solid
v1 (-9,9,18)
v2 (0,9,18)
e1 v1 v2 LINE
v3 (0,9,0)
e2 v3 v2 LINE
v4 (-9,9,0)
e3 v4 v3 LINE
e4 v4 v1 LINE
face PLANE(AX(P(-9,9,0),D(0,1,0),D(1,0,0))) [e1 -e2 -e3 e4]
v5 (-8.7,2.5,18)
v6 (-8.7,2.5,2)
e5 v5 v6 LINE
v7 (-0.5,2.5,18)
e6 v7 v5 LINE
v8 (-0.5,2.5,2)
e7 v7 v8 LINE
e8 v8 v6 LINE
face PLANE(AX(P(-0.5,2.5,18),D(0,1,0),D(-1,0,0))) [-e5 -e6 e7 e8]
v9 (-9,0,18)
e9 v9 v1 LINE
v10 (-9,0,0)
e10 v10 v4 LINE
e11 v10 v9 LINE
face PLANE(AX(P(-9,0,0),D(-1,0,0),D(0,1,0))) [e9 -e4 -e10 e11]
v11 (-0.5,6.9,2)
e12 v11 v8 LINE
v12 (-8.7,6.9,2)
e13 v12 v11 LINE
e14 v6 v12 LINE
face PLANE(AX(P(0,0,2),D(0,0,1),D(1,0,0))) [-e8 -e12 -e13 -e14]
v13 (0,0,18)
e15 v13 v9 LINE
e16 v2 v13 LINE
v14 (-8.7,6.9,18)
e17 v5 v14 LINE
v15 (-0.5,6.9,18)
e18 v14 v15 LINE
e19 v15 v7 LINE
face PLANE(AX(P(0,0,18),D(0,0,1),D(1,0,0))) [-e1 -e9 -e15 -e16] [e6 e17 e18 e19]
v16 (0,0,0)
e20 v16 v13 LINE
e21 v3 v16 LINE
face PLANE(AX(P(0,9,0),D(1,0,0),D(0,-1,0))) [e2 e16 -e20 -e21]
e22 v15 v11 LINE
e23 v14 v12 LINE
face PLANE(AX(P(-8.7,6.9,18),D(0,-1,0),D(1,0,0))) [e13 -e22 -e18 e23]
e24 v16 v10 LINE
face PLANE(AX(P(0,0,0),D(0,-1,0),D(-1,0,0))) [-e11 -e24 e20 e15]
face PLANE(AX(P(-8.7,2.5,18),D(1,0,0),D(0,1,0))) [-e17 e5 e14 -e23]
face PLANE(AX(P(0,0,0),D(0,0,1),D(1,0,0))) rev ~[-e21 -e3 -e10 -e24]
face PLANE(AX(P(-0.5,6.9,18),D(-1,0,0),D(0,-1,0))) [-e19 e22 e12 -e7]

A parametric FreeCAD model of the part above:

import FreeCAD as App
import Part
import Sketcher

V = App.Vector

doc = App.newDocument("Part")
body = doc.addObject("PartDesign::Body", "Body")

sketch1 = doc.addObject("Sketcher::SketchObject", "Sketch")
body.addObject(sketch1)
sketch1.AttachmentSupport = (doc.XY_Plane, [""])
sketch1.MapMode = "FlatFace"
sketch1.addGeometry([
    Part.LineSegment(V(-9, 0, 0), V(0, 0, 0)),
    Part.LineSegment(V(0, 0, 0), V(0, 9, 0)),
    Part.LineSegment(V(0, 9, 0), V(-9, 9, 0)),
    Part.LineSegment(V(-9, 9, 0), V(-9, 0, 0)),
], False)
sketch1.addConstraint([
    Sketcher.Constraint("Coincident", 0, 2, 1, 1),
    Sketcher.Constraint("Coincident", 1, 2, 2, 1),
    Sketcher.Constraint("Coincident", 2, 2, 3, 1),
    Sketcher.Constraint("Coincident", 3, 2, 0, 1),
    Sketcher.Constraint("Horizontal", 0),
    Sketcher.Constraint("Vertical", 1),
    Sketcher.Constraint("Horizontal", 2),
    Sketcher.Constraint("Vertical", 3),
    Sketcher.Constraint("Coincident", 0, 2, -1, 1),
    Sketcher.Constraint("Equal", 2, 1),
    Sketcher.Constraint("DistanceX", 0, 1, 0, 2, 9.0),
])
pad1 = doc.addObject("PartDesign::Pad", "Pad")
body.addObject(pad1)
pad1.Profile = sketch1
pad1.Length = 18

sketch2 = doc.addObject("Sketcher::SketchObject", "Sketch001")
body.addObject(sketch2)
sketch2.AttachmentSupport = (doc.XY_Plane, [""])
sketch2.MapMode = "FlatFace"
sketch2.AttachmentOffset = App.Placement(V(0, 0, 18), App.Rotation())
sketch2.addGeometry([
    Part.LineSegment(V(-8.7, 2.5, 0), V(-0.5, 2.5, 0)),
    Part.LineSegment(V(-0.5, 2.5, 0), V(-0.5, 6.9, 0)),
    Part.LineSegment(V(-0.5, 6.9, 0), V(-8.7, 6.9, 0)),
    Part.LineSegment(V(-8.7, 6.9, 0), V(-8.7, 2.5, 0)),
], False)
sketch2.addConstraint([
    Sketcher.Constraint("Coincident", 0, 2, 1, 1),
    Sketcher.Constraint("Coincident", 1, 2, 2, 1),
    Sketcher.Constraint("Coincident", 2, 2, 3, 1),
    Sketcher.Constraint("Coincident", 3, 2, 0, 1),
    Sketcher.Constraint("Horizontal", 0),
    Sketcher.Constraint("Vertical", 1),
    Sketcher.Constraint("Horizontal", 2),
    Sketcher.Constraint("Vertical", 3),
    Sketcher.Constraint("DistanceX", 0, 1, 0, 2, 8.2),
    Sketcher.Constraint("DistanceY", 1, 1, 1, 2, 4.4),
    Sketcher.Constraint("DistanceX", 0, 2, -1, 1, 0.5),
    Sketcher.Constraint("DistanceY", -1, 1, 0, 2, 2.5),
])
pocket1 = doc.addObject("PartDesign::Pocket", "Pocket")
body.addObject(pocket1)
pocket1.Profile = sketch2
pocket1.Length = 16

doc.recompute()
